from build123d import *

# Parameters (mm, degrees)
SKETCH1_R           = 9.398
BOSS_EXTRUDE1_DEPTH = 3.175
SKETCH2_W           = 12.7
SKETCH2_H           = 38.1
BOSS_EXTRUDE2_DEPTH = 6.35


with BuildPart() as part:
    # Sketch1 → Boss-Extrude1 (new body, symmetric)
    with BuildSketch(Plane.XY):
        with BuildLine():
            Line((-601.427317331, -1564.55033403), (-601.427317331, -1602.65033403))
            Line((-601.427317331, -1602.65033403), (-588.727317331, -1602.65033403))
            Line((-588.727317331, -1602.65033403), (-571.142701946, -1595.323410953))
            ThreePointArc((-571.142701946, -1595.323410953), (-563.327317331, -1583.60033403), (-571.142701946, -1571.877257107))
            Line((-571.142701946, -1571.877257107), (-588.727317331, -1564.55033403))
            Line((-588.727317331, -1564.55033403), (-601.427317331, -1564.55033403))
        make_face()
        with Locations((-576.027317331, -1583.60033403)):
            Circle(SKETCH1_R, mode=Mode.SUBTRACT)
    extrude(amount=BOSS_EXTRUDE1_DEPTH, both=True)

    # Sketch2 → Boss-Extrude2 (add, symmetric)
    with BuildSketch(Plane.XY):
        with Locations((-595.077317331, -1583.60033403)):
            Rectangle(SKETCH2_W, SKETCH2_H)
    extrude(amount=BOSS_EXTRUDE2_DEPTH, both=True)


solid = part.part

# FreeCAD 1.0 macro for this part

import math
import FreeCAD as App
import Part
import Sketcher
from FreeCAD import Vector
Q = App.Units.Quantity

doc = App.newDocument("Part")
body = doc.addObject("PartDesign::Body", "Body")

# Sketch on XY plane
sketch1 = doc.addObject("Sketcher::SketchObject", "Sketch")
body.addObject(sketch1)
sketch1.AttachmentSupport = (doc.XY_Plane, [""])
sketch1.MapMode = "FlatFace"
sketch1.addGeometry([
    Part.LineSegment(Vector(-601, -1565, 0), Vector(-601, -1603, 0)),  # 0
    Part.LineSegment(Vector(-601, -1603, 0), Vector(-589, -1603, 0)),  # 1
    Part.LineSegment(Vector(-589, -1603, 0), Vector(-571, -1595, 0)),  # 2
    Part.ArcOfCircle(Part.Circle(Vector(-576, -1584, 0), Vector(0, 0, 1), 13), math.radians(-67), math.radians(67)),  # 3
    Part.LineSegment(Vector(-571, -1572, 0), Vector(-589, -1565, 0)),  # 4
    Part.LineSegment(Vector(-589, -1565, 0), Vector(-601, -1565, 0)),  # 5
    Part.Circle(Vector(-576, -1584, 0), Vector(0, 0, 1), 9),  # 6
], False)
sketch1.addConstraint([
    Sketcher.Constraint("Coincident", 0, 2, 1, 1),
    Sketcher.Constraint("Coincident", 1, 2, 2, 1),
    Sketcher.Constraint("Tangent", 2, 2, 3, 1),
    Sketcher.Constraint("Tangent", 3, 2, 4, 1),
    Sketcher.Constraint("Coincident", 4, 2, 5, 1),
    Sketcher.Constraint("Coincident", 5, 2, 0, 1),
    Sketcher.Constraint("Vertical", 0),
    Sketcher.Constraint("Horizontal", 1),
    Sketcher.Constraint("Horizontal", 5),
    Sketcher.Constraint("Coincident", 6, 3, 3, 3),
    Sketcher.Constraint("Vertical", 2, 2, 3, 2),
    Sketcher.Constraint("Vertical", 1, 2, 4, 2),
    Sketcher.Constraint("Radius", 3, Q("0.5 in")),
    Sketcher.Constraint("Diameter", 6, Q("0.74 in")),
    Sketcher.Constraint("DistanceX", 1, 1, 1, 2, Q("0.5 in")),
    Sketcher.Constraint("DistanceY", 0, 2, 0, 1, Q("1.5 in")),
    Sketcher.Constraint("DistanceX", 0, 2, 3, 3, Q("1 in")),
    Sketcher.Constraint("DistanceX", 2, 2, -1, 1, 571.142702),
    Sketcher.Constraint("DistanceY", 2, 2, -1, 1, 1595.323411),
])
pad1 = doc.addObject("PartDesign::Pad", "Pad")
body.addObject(pad1)
pad1.Profile = sketch1
pad1.Length = Q("0.25 in")
pad1.Midplane = True

# Sketch on XY plane
sketch2 = doc.addObject("Sketcher::SketchObject", "Sketch001")
body.addObject(sketch2)
sketch2.AttachmentSupport = (doc.XY_Plane, [""])
sketch2.MapMode = "FlatFace"
sketch2.addGeometry([
    Part.LineSegment(Vector(-601, -1565, 0), Vector(-601, -1603, 0)),
    Part.LineSegment(Vector(-601, -1603, 0), Vector(-589, -1603, 0)),
    Part.LineSegment(Vector(-589, -1603, 0), Vector(-589, -1565, 0)),
    Part.LineSegment(Vector(-589, -1565, 0), Vector(-601, -1565, 0)),
], False)
sketch2.addConstraint([
    Sketcher.Constraint("Coincident", 0, 2, 1, 1),
    Sketcher.Constraint("Coincident", 1, 2, 2, 1),
    Sketcher.Constraint("Coincident", 2, 2, 3, 1),
    Sketcher.Constraint("Coincident", 3, 2, 0, 1),
    Sketcher.Constraint("Vertical", 0),
    Sketcher.Constraint("Horizontal", 1),
    Sketcher.Constraint("Vertical", 2),
    Sketcher.Constraint("Horizontal", 3),
    Sketcher.Constraint("DistanceX", 1, 1, 1, 2, Q("0.5 in")),
    Sketcher.Constraint("DistanceY", 0, 2, 0, 1, Q("1.5 in")),
    Sketcher.Constraint("DistanceX", 0, 2, -1, 1, 601.427317),
    Sketcher.Constraint("DistanceY", 0, 2, -1, 1, 1602.650334),
])
pad2 = doc.addObject("PartDesign::Pad", "Pad001")
body.addObject(pad2)
pad2.Profile = sketch2
pad2.Length = Q("0.5 in")
pad2.Midplane = True

doc.recompute()
